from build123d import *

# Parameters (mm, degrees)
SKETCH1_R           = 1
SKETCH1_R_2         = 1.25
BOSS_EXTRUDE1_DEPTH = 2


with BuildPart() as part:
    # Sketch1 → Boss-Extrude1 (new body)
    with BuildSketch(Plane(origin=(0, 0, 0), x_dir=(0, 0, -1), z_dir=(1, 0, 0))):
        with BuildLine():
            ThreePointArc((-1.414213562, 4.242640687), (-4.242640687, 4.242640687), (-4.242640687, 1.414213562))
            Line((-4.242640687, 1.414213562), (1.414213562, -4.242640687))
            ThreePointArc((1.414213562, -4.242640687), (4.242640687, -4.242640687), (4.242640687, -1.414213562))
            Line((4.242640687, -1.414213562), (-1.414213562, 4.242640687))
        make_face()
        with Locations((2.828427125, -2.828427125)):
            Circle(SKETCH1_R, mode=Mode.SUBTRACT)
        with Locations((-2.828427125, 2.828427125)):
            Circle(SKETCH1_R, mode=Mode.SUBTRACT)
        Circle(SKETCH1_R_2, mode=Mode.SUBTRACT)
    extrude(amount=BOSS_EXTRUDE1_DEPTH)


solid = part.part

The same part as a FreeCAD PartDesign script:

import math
import FreeCAD as App
import Part
import Sketcher
Q = App.Units.Quantity

doc = App.newDocument("Part")
body = doc.addObject("PartDesign::Body", "Body")

sketch1 = doc.addObject("Sketcher::SketchObject", "Sketch")
body.addObject(sketch1)
sketch1.AttachmentSupport = (doc.YZ_Plane, [""])
sketch1.MapMode = "FlatFace"
sketch1.addGeometry([
    Part.ArcOfCircle(Part.Circle(App.Vector(2.8, 2.8, 0), App.Vector(0, 0, 1), 2), math.radians(-45), math.radians(135)),
    Part.LineSegment(App.Vector(1.4, 4.2, 0), App.Vector(-4.2, -1.4, 0)),
    Part.ArcOfCircle(Part.Circle(App.Vector(-2.8, -2.8, 0), App.Vector(0, 0, 1), 2), math.radians(135), math.radians(315)),
    Part.LineSegment(App.Vector(-1.4, -4.2, 0), App.Vector(4.2, 1.4, 0)),
    Part.Circle(App.Vector(0, 0, 0), App.Vector(0, 0, 1), 1.2),
    Part.Circle(App.Vector(-2.8, -2.8, 0), App.Vector(0, 0, 1), 1),
    Part.Circle(App.Vector(2.8, 2.8, 0), App.Vector(0, 0, 1), 1),
], False)
sketch1.addConstraint([
    Sketcher.Constraint("Tangent", 0, 2, 1, 1),
    Sketcher.Constraint("Tangent", 1, 2, 2, 1),
    Sketcher.Constraint("Tangent", 2, 2, 3, 1),
    Sketcher.Constraint("Tangent", 3, 2, 0, 1),
    Sketcher.Constraint("Coincident", 4, 3, -1, 1),
    Sketcher.Constraint("Coincident", 5, 3, 2, 3),
    Sketcher.Constraint("Coincident", 6, 3, 0, 3),
    Sketcher.Constraint("Equal", 0, 2),
    Sketcher.Constraint("Equal", 5, 6),
    Sketcher.Constraint("Symmetric", 0, 3, 2, 3, -1, 1),
    Sketcher.Constraint("Diameter", 5, Q("2 mm")),
    Sketcher.Constraint("Radius", 0, Q("2 mm")),
    Sketcher.Constraint("Diameter", 4, Q("2.5 mm")),
    Sketcher.Constraint("Angle", 1, Q("-135 deg")),
    Sketcher.Constraint("Distance", 1, Q("8 mm")),
])
pad1 = doc.addObject("PartDesign::Pad", "Pad")
body.addObject(pad1)
pad1.Profile = sketch1
pad1.Length = 2

doc.recompute()
